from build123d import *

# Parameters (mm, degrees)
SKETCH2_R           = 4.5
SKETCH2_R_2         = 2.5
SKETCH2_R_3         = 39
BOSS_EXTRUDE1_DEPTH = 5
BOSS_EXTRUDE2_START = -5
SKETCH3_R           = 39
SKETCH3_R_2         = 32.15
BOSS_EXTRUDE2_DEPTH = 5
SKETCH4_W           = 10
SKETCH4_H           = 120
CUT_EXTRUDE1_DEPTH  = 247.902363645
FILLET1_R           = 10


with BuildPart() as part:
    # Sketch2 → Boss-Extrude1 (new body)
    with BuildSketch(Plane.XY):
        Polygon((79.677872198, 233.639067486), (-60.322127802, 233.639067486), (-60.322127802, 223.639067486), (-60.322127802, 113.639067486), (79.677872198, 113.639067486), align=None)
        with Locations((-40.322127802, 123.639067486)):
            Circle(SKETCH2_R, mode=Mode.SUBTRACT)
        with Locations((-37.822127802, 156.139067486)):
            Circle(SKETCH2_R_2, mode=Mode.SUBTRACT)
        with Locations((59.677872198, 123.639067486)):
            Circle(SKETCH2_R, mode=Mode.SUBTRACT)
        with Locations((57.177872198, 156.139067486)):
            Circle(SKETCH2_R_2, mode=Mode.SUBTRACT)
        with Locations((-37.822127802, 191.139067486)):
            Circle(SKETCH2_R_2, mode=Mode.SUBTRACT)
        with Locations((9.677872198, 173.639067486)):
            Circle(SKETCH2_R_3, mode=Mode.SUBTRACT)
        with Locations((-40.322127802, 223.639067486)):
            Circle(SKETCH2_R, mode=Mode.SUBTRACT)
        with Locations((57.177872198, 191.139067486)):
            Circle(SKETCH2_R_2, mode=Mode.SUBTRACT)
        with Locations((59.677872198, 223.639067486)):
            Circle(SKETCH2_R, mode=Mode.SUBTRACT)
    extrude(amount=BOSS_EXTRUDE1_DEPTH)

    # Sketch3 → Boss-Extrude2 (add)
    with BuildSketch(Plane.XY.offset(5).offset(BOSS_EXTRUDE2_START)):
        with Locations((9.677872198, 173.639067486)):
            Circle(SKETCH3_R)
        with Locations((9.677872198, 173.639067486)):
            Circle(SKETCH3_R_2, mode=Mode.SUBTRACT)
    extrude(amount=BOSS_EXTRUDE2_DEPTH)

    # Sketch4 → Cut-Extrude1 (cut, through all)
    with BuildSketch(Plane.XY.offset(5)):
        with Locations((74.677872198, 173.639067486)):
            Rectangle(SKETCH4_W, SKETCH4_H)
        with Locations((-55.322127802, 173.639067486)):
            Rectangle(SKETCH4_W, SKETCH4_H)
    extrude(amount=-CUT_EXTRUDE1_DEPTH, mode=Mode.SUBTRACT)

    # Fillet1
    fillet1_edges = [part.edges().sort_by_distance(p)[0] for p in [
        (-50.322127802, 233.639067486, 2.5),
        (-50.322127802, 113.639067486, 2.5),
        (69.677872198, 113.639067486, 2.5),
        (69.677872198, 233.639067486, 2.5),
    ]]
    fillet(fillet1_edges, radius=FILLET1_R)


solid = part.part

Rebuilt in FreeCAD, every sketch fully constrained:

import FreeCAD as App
import Part
import Sketcher

V = App.Vector
Q = App.Units.Quantity


def edges_at(feature, points):
    """Names of the edges that pass closest to the given points."""
    edges = feature.Shape.Edges
    near = lambda p: min(range(len(edges)), key=lambda i: edges[i].distToShape(Part.Vertex(*p))[0])
    return sorted({f"Edge{near(p) + 1}" for p in points})


def add_polygon(sketch, points):
    """Adds a closed chain of lines whose ends are joined by coincident constraints."""
    first, n = sketch.GeometryCount, len(points)
    for a, b in zip(points, points[1:] + points[:1]):
        sketch.addGeometry(Part.LineSegment(App.Vector(*a, 0), App.Vector(*b, 0)), False)
    for i in range(n):
        sketch.addConstraint(Sketcher.Constraint("Coincident", first + i, 2, first + (i + 1) % n, 1))

doc = App.newDocument("Part")
body = doc.addObject("PartDesign::Body", "Body")

sketch1 = doc.addObject("Sketcher::SketchObject", "Sketch")
body.addObject(sketch1)
sketch1.AttachmentSupport = (doc.XY_Plane, [""])
sketch1.MapMode = "FlatFace"
add_polygon(sketch1, [(79.7, 233.6), (-60.3, 233.6), (-60.3, 113.6), (79.7, 113.6)])
sketch1.addGeometry(Part.Circle(V(-40.3, 123.6, 0), V(0, 0, 1), 4.5), False)
sketch1.addGeometry(Part.Circle(V(-37.8, 156.1, 0), V(0, 0, 1), 2.5), False)
sketch1.addGeometry(Part.Circle(V(59.7, 123.6, 0), V(0, 0, 1), 4.5), False)
sketch1.addGeometry(Part.Circle(V(9.7, 173.6, 0), V(0, 0, 1), 39), False)
sketch1.addGeometry(Part.Circle(V(57.2, 156.1, 0), V(0, 0, 1), 2.5), False)
sketch1.addGeometry(Part.Circle(V(-37.8, 191.1, 0), V(0, 0, 1), 2.5), False)
sketch1.addGeometry(Part.Circle(V(-40.3, 223.6, 0), V(0, 0, 1), 4.5), False)
sketch1.addGeometry(Part.Circle(V(57.2, 191.1, 0), V(0, 0, 1), 2.5), False)
sketch1.addGeometry(Part.Circle(V(59.7, 223.6, 0), V(0, 0, 1), 4.5), False)
sketch1.addConstraint(Sketcher.Constraint("Horizontal", 0))
sketch1.addConstraint(Sketcher.Constraint("Vertical", 1))
sketch1.addConstraint(Sketcher.Constraint("Horizontal", 2))
sketch1.addConstraint(Sketcher.Constraint("Vertical", 3))
sketch1.addConstraint(Sketcher.Constraint("Equal", 4, 6))
sketch1.addConstraint(Sketcher.Constraint("Equal", 5, 8))
sketch1.addConstraint(Sketcher.Constraint("Equal", 8, 9))
sketch1.addConstraint(Sketcher.Constraint("Equal", 6, 10))
sketch1.addConstraint(Sketcher.Constraint("Equal", 9, 11))
sketch1.addConstraint(Sketcher.Constraint("Equal", 10, 12))
sketch1.addConstraint(Sketcher.Constraint("Horizontal", 4, 3, 6, 3))
sketch1.addConstraint(Sketcher.Constraint("Horizontal", 5, 3, 8, 3))
sketch1.addConstraint(Sketcher.Constraint("Horizontal", 9, 3, 11, 3))
sketch1.addConstraint(Sketcher.Constraint("Horizontal", 10, 3, 12, 3))
sketch1.addConstraint(Sketcher.Constraint("Vertical", 5, 3, 9, 3))
sketch1.addConstraint(Sketcher.Constraint("Vertical", 4, 3, 10, 3))
sketch1.addConstraint(Sketcher.Constraint("Vertical", 8, 3, 11, 3))
sketch1.addConstraint(Sketcher.Constraint("Vertical", 6, 3, 12, 3))
sketch1.addConstraint(Sketcher.Constraint("Diameter", 4, Q("9 mm")))
sketch1.addConstraint(Sketcher.Constraint("Diameter", 5, Q("5 mm")))
sketch1.addConstraint(Sketcher.Constraint("Diameter", 7, Q("78 mm")))
sketch1.addConstraint(Sketcher.Constraint("DistanceX", 0, 2, 0, 1, Q("140 mm")))
sketch1.addConstraint(Sketcher.Constraint("DistanceY", 1, 2, 1, 1, Q("120 mm")))
sketch1.addConstraint(Sketcher.Constraint("DistanceX", 4, 3, 6, 3, Q("100 mm")))
sketch1.addConstraint(Sketcher.Constraint("DistanceX", 4, 3, 7, 3, Q("50 mm")))
sketch1.addConstraint(Sketcher.Constraint("DistanceY", 4, 3, 7, 3, Q("50 mm")))
sketch1.addConstraint(Sketcher.Constraint("DistanceX", 5, 3, 8, 3, Q("95 mm")))
sketch1.addConstraint(Sketcher.Constraint("DistanceY", 5, 3, 9, 3, Q("35 mm")))
sketch1.addConstraint(Sketcher.Constraint("DistanceY", 7, 3, 10, 3, Q("50 mm")))
sketch1.addConstraint(Sketcher.Constraint("DistanceX", 0, 2, 10, 3, Q("20 mm")))
sketch1.addConstraint(Sketcher.Constraint("DistanceY", 10, 3, 0, 2, Q("10 mm")))
sketch1.addConstraint(Sketcher.Constraint("DistanceX", 4, 3, 5, 3, Q("2.5 mm")))
sketch1.addConstraint(Sketcher.Constraint("DistanceY", 4, 3, 5, 3, Q("32.5 mm")))
sketch1.addConstraint(Sketcher.Constraint("DistanceX", 4, 3, -1, 1, Q("40.322128 mm")))
sketch1.addConstraint(Sketcher.Constraint("DistanceY", -1, 1, 4, 3, Q("123.639067 mm")))
pad1 = doc.addObject("PartDesign::Pad", "Pad")
body.addObject(pad1)
pad1.Profile = sketch1
pad1.Length = 5

sketch2 = doc.addObject("Sketcher::SketchObject", "Sketch001")
body.addObject(sketch2)
sketch2.AttachmentSupport = (doc.XY_Plane, [""])
sketch2.MapMode = "FlatFace"
sketch2.addGeometry(Part.Circle(V(10, 174, 0), V(0, 0, 1), 39), False)
sketch2.addGeometry(Part.Circle(V(10, 174, 0), V(0, 0, 1), 32), False)
sketch2.addConstraint(Sketcher.Constraint("Coincident", 1, 3, 0, 3))
sketch2.addConstraint(Sketcher.Constraint("Diameter", 0, Q("78 mm")))
sketch2.addConstraint(Sketcher.Constraint("Diameter", 1, Q("64.3 mm")))
sketch2.addConstraint(Sketcher.Constraint("DistanceX", -1, 1, 0, 3, Q("9.677872 mm")))
sketch2.addConstraint(Sketcher.Constraint("DistanceY", -1, 1, 0, 3, Q("173.639067 mm")))
pad2 = doc.addObject("PartDesign::Pad", "Pad001")
body.addObject(pad2)
pad2.Profile = sketch2
pad2.Length = 5

sketch3 = doc.addObject("Sketcher::SketchObject", "Sketch002")
body.addObject(sketch3)
sketch3.AttachmentSupport = (doc.XY_Plane, [""])
sketch3.MapMode = "FlatFace"
sketch3.AttachmentOffset = App.Placement(V(0, 0, 5), App.Rotation())
add_polygon(sketch3, [(70, 234), (70, 114), (80, 114), (80, 234)])
add_polygon(sketch3, [(-60, 234), (-60, 114), (-50, 114), (-50, 234)])
sketch3.addConstraint(Sketcher.Constraint("Vertical", 0))
sketch3.addConstraint(Sketcher.Constraint("Horizontal", 1))
sketch3.addConstraint(Sketcher.Constraint("Vertical", 2))
sketch3.addConstraint(Sketcher.Constraint("Horizontal", 3))
sketch3.addConstraint(Sketcher.Constraint("Vertical", 4))
sketch3.addConstraint(Sketcher.Constraint("Horizontal", 5))
sketch3.addConstraint(Sketcher.Constraint("Vertical", 6))
sketch3.addConstraint(Sketcher.Constraint("Horizontal", 7))
sketch3.addConstraint(Sketcher.Constraint("Horizontal", 1, 2, 4, 2))
sketch3.addConstraint(Sketcher.Constraint("Horizontal", 3, 2, 6, 2))
sketch3.addConstraint(Sketcher.Constraint("Equal", 3, 5))
sketch3.addConstraint(Sketcher.Constraint("DistanceX", 1, 1, 1, 2, Q("10 mm")))
sketch3.addConstraint(Sketcher.Constraint("DistanceY", 0, 2, 0, 1, Q("120 mm")))
sketch3.addConstraint(Sketcher.Constraint("DistanceX", 4, 2, 0, 2, Q("130 mm")))
sketch3.addConstraint(Sketcher.Constraint("DistanceX", -1, 1, 0, 2, Q("69.677872 mm")))
sketch3.addConstraint(Sketcher.Constraint("DistanceY", -1, 1, 0, 2, Q("113.639067 mm")))
pocket1 = doc.addObject("PartDesign::Pocket", "Pocket")
body.addObject(pocket1)
pocket1.Profile = sketch3
pocket1.Type = "ThroughAll"
doc.recompute()

fillet = doc.addObject("PartDesign::Fillet", "Fillet")
body.addObject(fillet)
fillet.Base = (pocket1, edges_at(pocket1, [
    (-50.322, 233.639, 2.5),
    (-50.322, 113.639, 2.5),
    (69.678, 113.639, 2.5),
    (69.678, 233.639, 2.5),
]))
fillet.Radius = 10

doc.recompute()
